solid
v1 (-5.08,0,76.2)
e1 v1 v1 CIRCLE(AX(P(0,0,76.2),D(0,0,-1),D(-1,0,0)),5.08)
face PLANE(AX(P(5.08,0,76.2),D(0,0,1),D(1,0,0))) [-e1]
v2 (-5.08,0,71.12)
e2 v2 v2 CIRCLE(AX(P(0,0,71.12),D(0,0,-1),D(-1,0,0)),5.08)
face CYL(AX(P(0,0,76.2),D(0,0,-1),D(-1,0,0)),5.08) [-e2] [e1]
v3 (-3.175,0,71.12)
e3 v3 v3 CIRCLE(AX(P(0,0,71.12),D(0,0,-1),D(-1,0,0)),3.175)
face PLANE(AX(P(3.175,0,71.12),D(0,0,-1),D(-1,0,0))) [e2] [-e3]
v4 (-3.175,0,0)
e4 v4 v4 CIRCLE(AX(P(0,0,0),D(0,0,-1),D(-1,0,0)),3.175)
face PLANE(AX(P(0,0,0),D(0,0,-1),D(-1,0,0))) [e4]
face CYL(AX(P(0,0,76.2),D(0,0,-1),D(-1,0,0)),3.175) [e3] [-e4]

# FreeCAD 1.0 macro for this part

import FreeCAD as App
import Part
import Sketcher
from FreeCAD import Vector
Q = App.Units.Quantity

doc = App.newDocument("Part")
body = doc.addObject("PartDesign::Body", "Body")

# Sketch on XZ plane
sketch1 = body.newObject("Sketcher::SketchObject", "Sketch")
sketch1.AttachmentSupport = (doc.getObject("XZ_Plane"), [""])
sketch1.MapMode = "FlatFace"
sketch1.addGeometry(Part.LineSegment(Vector(5.08, 76.2, 0), Vector(0, 76.2, 0)), False)
sketch1.addGeometry(Part.LineSegment(Vector(0, 76.2, 0), Vector(0, 0, 0)), False)
sketch1.addGeometry(Part.LineSegment(Vector(0, 0, 0), Vector(3.175, 0, 0)), False)
sketch1.addGeometry(Part.LineSegment(Vector(3.175, 0, 0), Vector(3.175, 71.12, 0)), False)
sketch1.addGeometry(Part.LineSegment(Vector(3.175, 71.12, 0), Vector(5.08, 71.12, 0)), False)
sketch1.addGeometry(Part.LineSegment(Vector(5.08, 71.12, 0), Vector(5.08, 76.2, 0)), False)
sketch1.addConstraint(Sketcher.Constraint("Coincident", 0, 2, 1, 1))
sketch1.addConstraint(Sketcher.Constraint("Coincident", 1, 2, 2, 1))
sketch1.addConstraint(Sketcher.Constraint("Coincident", 2, 2, 3, 1))
sketch1.addConstraint(Sketcher.Constraint("Coincident", 3, 2, 4, 1))
sketch1.addConstraint(Sketcher.Constraint("Coincident", 4, 2, 5, 1))
sketch1.addConstraint(Sketcher.Constraint("Coincident", 5, 2, 0, 1))
sketch1.addConstraint(Sketcher.Constraint("Horizontal", 0))
sketch1.addConstraint(Sketcher.Constraint("Vertical", 1))
sketch1.addConstraint(Sketcher.Constraint("Horizontal", 2))
sketch1.addConstraint(Sketcher.Constraint("Vertical", 3))
sketch1.addConstraint(Sketcher.Constraint("Horizontal", 4))
sketch1.addConstraint(Sketcher.Constraint("Vertical", 5))
sketch1.addConstraint(Sketcher.Constraint("Coincident", 1, 2, -1, 1))
sketch1.addConstraint(Sketcher.Constraint("Equal", 0, 5))
sketch1.addConstraint(Sketcher.Constraint("DistanceY", 1, 2, 1, 1, Q("3 in")))
sketch1.addConstraint(Sketcher.Constraint("DistanceX", 0, 2, 0, 1, Q("0.2 in")))
sketch1.addConstraint(Sketcher.Constraint("DistanceX", 2, 1, 2, 2, Q("0.125 in")))
revolution = body.newObject("PartDesign::Revolution", "Revolution")
revolution.Profile = sketch1
revolution.ReferenceAxis = (sketch1, ["V_Axis"])
revolution.Angle = 360

doc.recompute()
